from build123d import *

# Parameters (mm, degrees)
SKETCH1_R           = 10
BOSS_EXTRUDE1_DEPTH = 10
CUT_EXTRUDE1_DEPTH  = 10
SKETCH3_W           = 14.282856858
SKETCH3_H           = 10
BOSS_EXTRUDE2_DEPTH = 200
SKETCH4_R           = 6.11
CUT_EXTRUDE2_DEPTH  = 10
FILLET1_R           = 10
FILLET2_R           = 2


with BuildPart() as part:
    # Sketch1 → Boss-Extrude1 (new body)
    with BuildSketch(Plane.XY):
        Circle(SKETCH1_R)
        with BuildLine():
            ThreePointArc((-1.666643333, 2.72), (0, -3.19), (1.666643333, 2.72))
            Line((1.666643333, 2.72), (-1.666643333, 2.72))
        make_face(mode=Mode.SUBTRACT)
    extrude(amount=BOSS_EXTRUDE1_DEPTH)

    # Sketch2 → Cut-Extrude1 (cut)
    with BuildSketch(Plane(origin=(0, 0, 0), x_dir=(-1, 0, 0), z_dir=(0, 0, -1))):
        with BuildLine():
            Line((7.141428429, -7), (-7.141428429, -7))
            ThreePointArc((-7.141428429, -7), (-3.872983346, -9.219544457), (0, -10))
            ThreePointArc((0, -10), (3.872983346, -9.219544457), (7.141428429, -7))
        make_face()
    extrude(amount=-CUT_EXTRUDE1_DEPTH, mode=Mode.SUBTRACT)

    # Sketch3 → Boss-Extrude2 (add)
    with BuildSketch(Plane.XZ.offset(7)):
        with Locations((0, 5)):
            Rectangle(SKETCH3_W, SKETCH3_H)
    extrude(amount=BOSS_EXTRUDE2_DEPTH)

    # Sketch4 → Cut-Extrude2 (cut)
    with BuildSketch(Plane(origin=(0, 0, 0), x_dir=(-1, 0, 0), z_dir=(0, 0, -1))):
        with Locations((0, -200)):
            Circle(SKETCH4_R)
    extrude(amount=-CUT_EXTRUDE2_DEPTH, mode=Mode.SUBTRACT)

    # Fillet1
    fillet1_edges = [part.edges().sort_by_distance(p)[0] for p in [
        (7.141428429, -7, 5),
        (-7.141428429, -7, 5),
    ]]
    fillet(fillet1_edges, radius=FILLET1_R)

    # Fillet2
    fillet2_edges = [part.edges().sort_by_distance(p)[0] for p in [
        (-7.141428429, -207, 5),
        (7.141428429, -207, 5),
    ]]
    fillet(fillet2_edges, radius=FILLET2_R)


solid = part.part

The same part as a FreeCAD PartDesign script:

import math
import FreeCAD as App
import Part
import Sketcher
Q = App.Units.Quantity


def edges_at(feature, points):
    """Names of the edges that pass closest to the given points."""
    edges = feature.Shape.Edges
    near = lambda p: min(range(len(edges)), key=lambda i: edges[i].distToShape(Part.Vertex(*p))[0])
    return sorted({f"Edge{near(p) + 1}" for p in points})

doc = App.newDocument("Part")
body = doc.addObject("PartDesign::Body", "Body")

# Sketch on XY plane
sketch1 = body.newObject("Sketcher::SketchObject", "Sketch")
sketch1.AttachmentSupport = (doc.getObject("XY_Plane"), [""])
sketch1.MapMode = "FlatFace"
sketch1.addGeometry([
    Part.Circle(App.Vector(0, 0, 0), App.Vector(0, 0, 1), 10),
    Part.ArcOfCircle(Part.Circle(App.Vector(0, 0, 0), App.Vector(0, 0, 1), 3.19), math.radians(121.497323), math.radians(418.502677)),
    Part.LineSegment(App.Vector(-1.666643, 2.72, 0), App.Vector(1.666643, 2.72, 0)),
], False)
sketch1.addConstraint([
    Sketcher.Constraint("Coincident", 1, 1, 2, 1),
    Sketcher.Constraint("Coincident", 2, 2, 1, 2),
    Sketcher.Constraint("Horizontal", 2),
    Sketcher.Constraint("Coincident", 0, 3, -1, 1),
    Sketcher.Constraint("Coincident", 1, 3, -1, 1),
    Sketcher.Constraint("Diameter", 0, Q("20 mm")),
    Sketcher.Constraint("Radius", 1, Q("3.19 mm")),
    Sketcher.Constraint("DistanceY", -1, 1, 1, 1, Q("2.72 mm")),
])
pad1 = body.newObject("PartDesign::Pad", "Pad")
pad1.Profile = sketch1
pad1.Length = 10

# Sketch on XY plane
sketch2 = body.newObject("Sketcher::SketchObject", "Sketch001")
sketch2.AttachmentSupport = (doc.getObject("XY_Plane"), [""])
sketch2.MapMode = "FlatFace"
sketch2.addGeometry([
    Part.LineSegment(App.Vector(-7.141428, -7, 0), App.Vector(7.141428, -7, 0)),
    Part.ArcOfCircle(Part.Circle(App.Vector(0, 0, 0), App.Vector(0, 0, 1), 10), math.radians(-90), math.radians(-44.427004)),
    Part.ArcOfCircle(Part.Circle(App.Vector(0, 0, 0), App.Vector(0, 0, 1), 10), math.radians(-135.572996), math.radians(-90)),
], False)
sketch2.addConstraint([
    Sketcher.Constraint("Coincident", 0, 2, 1, 2),
    Sketcher.Constraint("Tangent", 1, 1, 2, 2),
    Sketcher.Constraint("Coincident", 2, 1, 0, 1),
    Sketcher.Constraint("Horizontal", 0),
    Sketcher.Constraint("Coincident", 1, 3, -1, 1),
    Sketcher.Constraint("Equal", 1, 2),
    Sketcher.Constraint("PointOnObject", 1, 1, -2),
    Sketcher.Constraint("Radius", 1, Q("10 mm")),
    Sketcher.Constraint("DistanceY", 0, 2, -1, 1, Q("7 mm")),
])
pocket1 = body.newObject("PartDesign::Pocket", "Pocket")
pocket1.Profile = sketch2
pocket1.Length = 10
pocket1.Reversed = True

# Sketch on XZ plane
sketch3 = body.newObject("Sketcher::SketchObject", "Sketch002")
sketch3.AttachmentSupport = (doc.getObject("XZ_Plane"), [""])
sketch3.MapMode = "FlatFace"
sketch3.AttachmentOffset = App.Placement(App.Vector(0, 0, 7), App.Rotation())
sketch3.addGeometry([
    Part.LineSegment(App.Vector(-7.141428, 10, 0), App.Vector(-7.141428, 0, 0)),
    Part.LineSegment(App.Vector(-7.141428, 0, 0), App.Vector(7.141428, 0, 0)),
    Part.LineSegment(App.Vector(7.141428, 0, 0), App.Vector(7.141428, 10, 0)),
    Part.LineSegment(App.Vector(7.141428, 10, 0), App.Vector(-7.141428, 10, 0)),
], False)
sketch3.addConstraint([
    Sketcher.Constraint("Coincident", 0, 2, 1, 1),
    Sketcher.Constraint("Coincident", 1, 2, 2, 1),
    Sketcher.Constraint("Coincident", 2, 2, 3, 1),
    Sketcher.Constraint("Coincident", 3, 2, 0, 1),
    Sketcher.Constraint("Vertical", 0),
    Sketcher.Constraint("Horizontal", 1),
    Sketcher.Constraint("Vertical", 2),
    Sketcher.Constraint("Horizontal", 3),
    Sketcher.Constraint("Symmetric", 0, 2, 1, 2, -1, 1),
    Sketcher.Constraint("DistanceY", 0, 2, 0, 1, Q("10 mm")),
    Sketcher.Constraint("DistanceX", 1, 1, 1, 2, Q("14.282857 mm")),
])
pad2 = body.newObject("PartDesign::Pad", "Pad001")
pad2.Profile = sketch3
pad2.Length = 200

# Sketch on XY plane
sketch4 = body.newObject("Sketcher::SketchObject", "Sketch003")
sketch4.AttachmentSupport = (doc.getObject("XY_Plane"), [""])
sketch4.MapMode = "FlatFace"
sketch4.addGeometry(Part.Circle(App.Vector(0, -200, 0), App.Vector(0, 0, 1), 6.11), False)
sketch4.addConstraint([
    Sketcher.Constraint("PointOnObject", 0, 3, -2),
    Sketcher.Constraint("Diameter", 0, Q("12.22 mm")),
    Sketcher.Constraint("DistanceY", 0, 3, -1, 1, Q("200 mm")),
])
pocket2 = body.newObject("PartDesign::Pocket", "Pocket001")
pocket2.Profile = sketch4
pocket2.Length = 10
pocket2.Reversed = True
doc.recompute()

fillet = body.newObject("PartDesign::Fillet", "Fillet")
fillet.Base = (pocket2, edges_at(pocket2, [(7.141, -7, 5), (-7.141, -7, 5)]))
fillet.Radius = 10
doc.recompute()

fillet2 = body.newObject("PartDesign::Fillet", "Fillet001")
fillet2.Base = (fillet, edges_at(fillet, [(-7.141, -207, 5), (7.141, -207, 5)]))
fillet2.Radius = 2

doc.recompute()
